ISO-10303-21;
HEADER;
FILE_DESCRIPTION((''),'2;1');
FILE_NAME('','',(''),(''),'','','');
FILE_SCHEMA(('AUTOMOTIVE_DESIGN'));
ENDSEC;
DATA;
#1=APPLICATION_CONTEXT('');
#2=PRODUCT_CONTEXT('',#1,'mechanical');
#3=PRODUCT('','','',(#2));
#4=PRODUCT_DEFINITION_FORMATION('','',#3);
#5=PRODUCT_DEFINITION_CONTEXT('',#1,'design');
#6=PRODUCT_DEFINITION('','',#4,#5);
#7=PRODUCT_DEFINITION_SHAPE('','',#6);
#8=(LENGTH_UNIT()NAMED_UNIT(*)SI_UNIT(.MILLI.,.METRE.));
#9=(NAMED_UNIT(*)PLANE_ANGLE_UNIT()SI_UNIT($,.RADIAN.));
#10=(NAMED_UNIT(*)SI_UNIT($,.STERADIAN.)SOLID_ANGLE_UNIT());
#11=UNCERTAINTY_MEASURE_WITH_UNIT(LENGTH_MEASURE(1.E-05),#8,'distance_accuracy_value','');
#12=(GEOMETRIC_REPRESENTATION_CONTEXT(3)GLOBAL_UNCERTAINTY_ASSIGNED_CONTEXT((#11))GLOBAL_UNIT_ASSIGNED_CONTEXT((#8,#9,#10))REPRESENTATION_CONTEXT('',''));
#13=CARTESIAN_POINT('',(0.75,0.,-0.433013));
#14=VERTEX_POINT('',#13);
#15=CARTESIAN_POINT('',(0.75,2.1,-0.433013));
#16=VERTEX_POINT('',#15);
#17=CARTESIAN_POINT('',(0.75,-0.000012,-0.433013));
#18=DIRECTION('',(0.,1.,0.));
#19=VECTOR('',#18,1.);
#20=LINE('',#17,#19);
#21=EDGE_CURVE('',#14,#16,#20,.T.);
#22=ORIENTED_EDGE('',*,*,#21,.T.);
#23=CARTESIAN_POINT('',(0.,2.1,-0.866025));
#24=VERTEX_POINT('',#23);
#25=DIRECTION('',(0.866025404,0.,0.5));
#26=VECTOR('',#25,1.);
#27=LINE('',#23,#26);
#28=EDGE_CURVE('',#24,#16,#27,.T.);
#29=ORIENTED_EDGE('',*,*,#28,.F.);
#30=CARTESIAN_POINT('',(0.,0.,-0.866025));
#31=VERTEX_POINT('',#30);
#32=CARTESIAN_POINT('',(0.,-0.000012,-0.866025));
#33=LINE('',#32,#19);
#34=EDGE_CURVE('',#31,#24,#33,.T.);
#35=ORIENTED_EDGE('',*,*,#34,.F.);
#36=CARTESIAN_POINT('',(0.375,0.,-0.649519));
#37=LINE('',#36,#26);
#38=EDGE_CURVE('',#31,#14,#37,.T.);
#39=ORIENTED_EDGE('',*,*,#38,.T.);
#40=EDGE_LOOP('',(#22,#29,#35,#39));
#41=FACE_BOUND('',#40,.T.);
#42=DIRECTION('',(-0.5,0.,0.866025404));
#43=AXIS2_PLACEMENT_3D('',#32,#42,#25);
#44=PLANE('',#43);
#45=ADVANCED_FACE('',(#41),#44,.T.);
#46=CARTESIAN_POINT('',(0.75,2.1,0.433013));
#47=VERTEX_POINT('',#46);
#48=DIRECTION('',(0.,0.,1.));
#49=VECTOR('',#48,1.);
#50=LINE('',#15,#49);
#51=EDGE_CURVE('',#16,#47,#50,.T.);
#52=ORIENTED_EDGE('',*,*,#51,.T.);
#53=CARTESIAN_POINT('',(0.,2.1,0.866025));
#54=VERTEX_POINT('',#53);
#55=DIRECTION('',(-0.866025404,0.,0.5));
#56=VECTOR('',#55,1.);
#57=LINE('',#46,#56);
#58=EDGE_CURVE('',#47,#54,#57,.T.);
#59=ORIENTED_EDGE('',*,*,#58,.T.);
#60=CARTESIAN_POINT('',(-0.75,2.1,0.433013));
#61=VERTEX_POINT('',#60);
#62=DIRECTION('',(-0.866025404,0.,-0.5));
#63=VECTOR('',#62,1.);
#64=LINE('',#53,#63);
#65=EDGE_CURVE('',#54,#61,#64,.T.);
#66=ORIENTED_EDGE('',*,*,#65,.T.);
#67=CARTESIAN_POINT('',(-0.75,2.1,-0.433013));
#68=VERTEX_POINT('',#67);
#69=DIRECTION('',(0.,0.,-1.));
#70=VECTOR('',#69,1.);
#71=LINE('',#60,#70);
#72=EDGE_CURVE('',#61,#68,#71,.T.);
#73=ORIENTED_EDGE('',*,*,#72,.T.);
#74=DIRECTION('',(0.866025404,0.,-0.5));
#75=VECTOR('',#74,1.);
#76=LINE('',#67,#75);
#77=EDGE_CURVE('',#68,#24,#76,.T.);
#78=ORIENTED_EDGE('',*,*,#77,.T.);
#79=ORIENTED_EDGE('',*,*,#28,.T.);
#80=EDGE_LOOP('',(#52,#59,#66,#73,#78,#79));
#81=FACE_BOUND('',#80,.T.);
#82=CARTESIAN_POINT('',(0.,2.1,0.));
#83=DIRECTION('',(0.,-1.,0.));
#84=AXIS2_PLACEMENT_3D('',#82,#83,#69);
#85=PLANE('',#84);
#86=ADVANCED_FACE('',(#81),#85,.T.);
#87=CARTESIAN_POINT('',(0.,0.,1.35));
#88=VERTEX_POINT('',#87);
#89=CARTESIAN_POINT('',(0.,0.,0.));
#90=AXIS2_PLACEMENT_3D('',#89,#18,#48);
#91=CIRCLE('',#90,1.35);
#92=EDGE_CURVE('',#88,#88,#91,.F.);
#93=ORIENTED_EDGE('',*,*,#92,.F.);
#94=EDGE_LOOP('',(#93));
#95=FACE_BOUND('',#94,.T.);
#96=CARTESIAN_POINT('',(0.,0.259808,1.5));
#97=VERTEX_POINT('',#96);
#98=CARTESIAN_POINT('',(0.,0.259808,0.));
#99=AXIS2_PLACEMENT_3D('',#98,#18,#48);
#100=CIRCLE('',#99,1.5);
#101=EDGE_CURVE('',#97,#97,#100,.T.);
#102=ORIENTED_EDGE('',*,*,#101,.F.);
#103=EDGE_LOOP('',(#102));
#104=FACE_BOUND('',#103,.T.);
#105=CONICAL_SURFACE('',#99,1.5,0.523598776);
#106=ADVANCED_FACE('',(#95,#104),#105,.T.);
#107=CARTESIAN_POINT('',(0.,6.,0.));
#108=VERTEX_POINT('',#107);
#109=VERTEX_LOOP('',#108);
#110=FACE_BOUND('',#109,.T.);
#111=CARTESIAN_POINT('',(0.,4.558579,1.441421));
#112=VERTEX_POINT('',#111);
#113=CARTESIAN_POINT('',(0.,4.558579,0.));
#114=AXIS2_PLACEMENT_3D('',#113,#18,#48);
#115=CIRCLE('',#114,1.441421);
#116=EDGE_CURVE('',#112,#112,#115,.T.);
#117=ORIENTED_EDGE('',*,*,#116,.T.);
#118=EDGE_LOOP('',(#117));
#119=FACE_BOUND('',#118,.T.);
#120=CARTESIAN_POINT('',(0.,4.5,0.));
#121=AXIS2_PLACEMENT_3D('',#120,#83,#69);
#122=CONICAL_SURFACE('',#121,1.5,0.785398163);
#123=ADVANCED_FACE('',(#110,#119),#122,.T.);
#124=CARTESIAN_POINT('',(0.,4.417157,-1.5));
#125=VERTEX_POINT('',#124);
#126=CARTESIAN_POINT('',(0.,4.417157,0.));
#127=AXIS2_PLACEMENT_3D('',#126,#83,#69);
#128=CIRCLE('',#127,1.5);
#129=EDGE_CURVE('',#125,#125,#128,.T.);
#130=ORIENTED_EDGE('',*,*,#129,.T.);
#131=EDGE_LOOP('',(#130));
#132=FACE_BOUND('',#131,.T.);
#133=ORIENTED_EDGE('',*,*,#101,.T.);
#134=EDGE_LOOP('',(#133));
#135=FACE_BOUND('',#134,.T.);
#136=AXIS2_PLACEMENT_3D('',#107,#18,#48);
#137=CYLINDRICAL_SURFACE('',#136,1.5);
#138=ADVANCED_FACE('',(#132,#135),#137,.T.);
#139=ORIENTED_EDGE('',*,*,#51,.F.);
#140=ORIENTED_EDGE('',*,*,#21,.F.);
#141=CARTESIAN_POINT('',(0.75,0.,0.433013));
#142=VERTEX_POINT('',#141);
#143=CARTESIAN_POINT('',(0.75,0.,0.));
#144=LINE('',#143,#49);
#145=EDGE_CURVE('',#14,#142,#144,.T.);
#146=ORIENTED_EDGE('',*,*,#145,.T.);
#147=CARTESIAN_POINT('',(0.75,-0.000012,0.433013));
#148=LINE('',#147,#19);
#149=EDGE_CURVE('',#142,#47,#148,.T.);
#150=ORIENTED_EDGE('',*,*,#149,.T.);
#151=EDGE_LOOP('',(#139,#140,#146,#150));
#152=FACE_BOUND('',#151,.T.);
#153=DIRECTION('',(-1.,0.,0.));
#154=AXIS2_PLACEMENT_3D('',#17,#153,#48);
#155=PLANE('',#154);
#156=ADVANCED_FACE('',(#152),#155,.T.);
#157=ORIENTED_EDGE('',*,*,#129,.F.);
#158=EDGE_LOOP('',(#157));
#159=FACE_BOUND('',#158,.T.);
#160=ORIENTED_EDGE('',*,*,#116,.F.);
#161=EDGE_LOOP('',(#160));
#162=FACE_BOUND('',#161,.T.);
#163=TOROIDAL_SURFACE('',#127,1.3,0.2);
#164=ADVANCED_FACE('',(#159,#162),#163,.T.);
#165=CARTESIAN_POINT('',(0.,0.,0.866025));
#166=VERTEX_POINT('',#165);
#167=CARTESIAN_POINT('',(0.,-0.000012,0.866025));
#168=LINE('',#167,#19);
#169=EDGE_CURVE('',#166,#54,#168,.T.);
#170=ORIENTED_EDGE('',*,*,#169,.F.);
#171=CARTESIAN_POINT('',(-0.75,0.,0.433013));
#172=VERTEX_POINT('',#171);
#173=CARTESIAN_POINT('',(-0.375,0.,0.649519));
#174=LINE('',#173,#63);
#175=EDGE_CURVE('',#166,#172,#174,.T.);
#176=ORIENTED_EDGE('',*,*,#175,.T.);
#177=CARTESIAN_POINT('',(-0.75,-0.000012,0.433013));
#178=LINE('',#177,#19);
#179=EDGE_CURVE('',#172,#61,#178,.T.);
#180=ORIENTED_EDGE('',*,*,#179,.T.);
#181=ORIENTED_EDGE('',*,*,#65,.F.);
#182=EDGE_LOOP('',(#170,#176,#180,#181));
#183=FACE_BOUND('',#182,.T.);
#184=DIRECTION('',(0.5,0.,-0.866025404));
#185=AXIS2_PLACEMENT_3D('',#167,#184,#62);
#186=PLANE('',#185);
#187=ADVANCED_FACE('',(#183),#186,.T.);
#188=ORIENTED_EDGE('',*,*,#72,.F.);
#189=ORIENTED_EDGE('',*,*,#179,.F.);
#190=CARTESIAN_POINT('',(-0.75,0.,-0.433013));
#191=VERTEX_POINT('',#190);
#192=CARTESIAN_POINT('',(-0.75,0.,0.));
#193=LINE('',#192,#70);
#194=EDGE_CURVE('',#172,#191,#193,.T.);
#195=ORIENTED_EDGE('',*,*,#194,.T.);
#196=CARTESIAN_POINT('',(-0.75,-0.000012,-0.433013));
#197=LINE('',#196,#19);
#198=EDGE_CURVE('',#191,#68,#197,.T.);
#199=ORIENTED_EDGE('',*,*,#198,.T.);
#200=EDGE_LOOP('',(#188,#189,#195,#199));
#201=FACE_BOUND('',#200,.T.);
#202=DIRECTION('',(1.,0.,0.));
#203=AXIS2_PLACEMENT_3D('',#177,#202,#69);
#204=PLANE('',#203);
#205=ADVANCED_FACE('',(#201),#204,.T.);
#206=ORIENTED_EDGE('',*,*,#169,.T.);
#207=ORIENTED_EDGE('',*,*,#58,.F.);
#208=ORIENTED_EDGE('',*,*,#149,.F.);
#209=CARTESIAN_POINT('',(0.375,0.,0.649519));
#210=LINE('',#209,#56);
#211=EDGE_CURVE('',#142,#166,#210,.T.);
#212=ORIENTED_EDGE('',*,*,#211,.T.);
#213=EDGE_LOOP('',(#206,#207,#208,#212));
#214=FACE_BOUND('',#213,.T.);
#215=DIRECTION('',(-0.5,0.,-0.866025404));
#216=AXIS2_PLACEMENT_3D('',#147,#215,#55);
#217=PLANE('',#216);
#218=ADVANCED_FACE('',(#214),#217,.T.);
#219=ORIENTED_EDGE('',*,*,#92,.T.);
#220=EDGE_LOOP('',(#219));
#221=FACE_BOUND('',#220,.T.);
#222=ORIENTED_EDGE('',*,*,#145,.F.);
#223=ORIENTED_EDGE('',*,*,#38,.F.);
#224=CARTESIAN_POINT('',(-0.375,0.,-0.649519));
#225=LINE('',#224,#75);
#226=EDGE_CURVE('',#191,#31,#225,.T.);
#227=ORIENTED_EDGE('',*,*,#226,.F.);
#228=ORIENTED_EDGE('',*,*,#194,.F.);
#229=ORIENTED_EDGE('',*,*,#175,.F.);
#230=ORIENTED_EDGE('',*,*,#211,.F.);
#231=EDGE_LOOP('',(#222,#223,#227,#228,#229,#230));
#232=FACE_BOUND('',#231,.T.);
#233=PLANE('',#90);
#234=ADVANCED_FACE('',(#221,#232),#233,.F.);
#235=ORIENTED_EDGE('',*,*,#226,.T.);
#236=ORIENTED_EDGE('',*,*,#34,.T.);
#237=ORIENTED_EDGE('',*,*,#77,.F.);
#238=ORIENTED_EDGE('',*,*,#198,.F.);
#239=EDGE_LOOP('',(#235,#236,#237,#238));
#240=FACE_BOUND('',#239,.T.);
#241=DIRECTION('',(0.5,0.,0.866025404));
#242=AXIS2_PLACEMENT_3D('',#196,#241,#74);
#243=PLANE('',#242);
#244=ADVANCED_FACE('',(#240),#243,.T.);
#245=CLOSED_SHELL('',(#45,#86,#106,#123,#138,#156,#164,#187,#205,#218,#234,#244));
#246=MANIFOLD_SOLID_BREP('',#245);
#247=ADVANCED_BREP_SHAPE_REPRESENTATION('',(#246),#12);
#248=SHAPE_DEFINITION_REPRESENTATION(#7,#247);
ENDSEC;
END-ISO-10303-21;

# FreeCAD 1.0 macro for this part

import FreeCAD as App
import Part
import Sketcher
from FreeCAD import Vector
Q = App.Units.Quantity


def edges_at(feature, points):
    """Names of the edges that pass closest to the given points."""
    edges = feature.Shape.Edges
    near = lambda p: min(range(len(edges)), key=lambda i: edges[i].distToShape(Part.Vertex(*p))[0])
    return sorted({f"Edge{near(p) + 1}" for p in points})


def add_polygon(sketch, points):
    """Adds a closed chain of lines whose ends are joined by coincident constraints."""
    first, n = sketch.GeometryCount, len(points)
    for a, b in zip(points, points[1:] + points[:1]):
        sketch.addGeometry(Part.LineSegment(App.Vector(*a, 0), App.Vector(*b, 0)), False)
    for i in range(n):
        sketch.addConstraint(Sketcher.Constraint("Coincident", first + i, 2, first + (i + 1) % n, 1))

doc = App.newDocument("Part")
body = doc.addObject("PartDesign::Body", "Body")

# Sketch on XY plane
sketch1 = body.newObject("Sketcher::SketchObject", "Sketch")
sketch1.AttachmentSupport = (doc.getObject("XY_Plane"), [""])
sketch1.MapMode = "FlatFace"
add_polygon(sketch1, [(1.5, 4.5), (0, 6), (0, 0), (1.5, 0)])  # lines 0-3
sketch1.addConstraint(Sketcher.Constraint("Vertical", 1))
sketch1.addConstraint(Sketcher.Constraint("Horizontal", 2))
sketch1.addConstraint(Sketcher.Constraint("Vertical", 3))
sketch1.addConstraint(Sketcher.Constraint("Coincident", 1, 2, -1, 1))
sketch1.addConstraint(Sketcher.Constraint("DistanceY", 1, 2, 1, 1, Q("6 mm")))
sketch1.addConstraint(Sketcher.Constraint("Angle", 0, Q("135 deg")))
sketch1.addConstraint(Sketcher.Constraint("DistanceX", 2, 1, 2, 2, Q("1.5 mm")))
revolution = body.newObject("PartDesign::Revolution", "Revolution")
revolution.Profile = sketch1
revolution.ReferenceAxis = (sketch1, ["V_Axis"])
revolution.Angle = 360
doc.recompute()

fillet = body.newObject("PartDesign::Fillet", "Fillet")
fillet.Base = (revolution, edges_at(revolution, [(0, 4.5, 1.5)]))
fillet.Radius = 0.2

# Sketch on XZ plane
sketch2 = body.newObject("Sketcher::SketchObject", "Sketch001")
sketch2.AttachmentSupport = (doc.getObject("XZ_Plane"), [""])
sketch2.MapMode = "FlatFace"
add_polygon(sketch2, [(0, 0.9), (-0.8, 0.4), (-0.8, -0.4), (0, -0.9), (0.8, -0.4), (0.8, 0.4)])  # lines 0-5
sketch2.addConstraint(Sketcher.Constraint("Vertical", 1))
sketch2.addConstraint(Sketcher.Constraint("Vertical", 4))
sketch2.addConstraint(Sketcher.Constraint("Symmetric", 0, 2, 3, 2, -1, 1))
sketch2.addConstraint(Sketcher.Constraint("Symmetric", 2, 2, 5, 2, -1, 1))
sketch2.addConstraint(Sketcher.Constraint("PointOnObject", 2, 2, -2))
sketch2.addConstraint(Sketcher.Constraint("Parallel", 2, 5))
sketch2.addConstraint(Sketcher.Constraint("Horizontal", 1, 2, 3, 2))
sketch2.addConstraint(Sketcher.Constraint("Angle", 0, Q("-150 deg")))
sketch2.addConstraint(Sketcher.Constraint("DistanceX", 1, 2, 3, 2, Q("1.5 mm")))
sketch2.addConstraint(Sketcher.Constraint("DistanceY", 1, 2, 1, 1, Q("0.866025 mm")))
pocket1 = body.newObject("PartDesign::Pocket", "Pocket")
pocket1.Profile = sketch2
pocket1.Type = "TwoLengths"
pocket1.Length = 7.363961
pocket1.Length2 = 2.1
pocket1.Reversed = True
doc.recompute()

chamfer = body.newObject("PartDesign::Chamfer", "Chamfer")
chamfer.Base = (pocket1, edges_at(pocket1, [(0, 0, 1.5)]))
chamfer.ChamferType = "Two distances"
chamfer.Size = 0.15
chamfer.Size2 = 0.259808
chamfer.FlipDirection = True

doc.recompute()
